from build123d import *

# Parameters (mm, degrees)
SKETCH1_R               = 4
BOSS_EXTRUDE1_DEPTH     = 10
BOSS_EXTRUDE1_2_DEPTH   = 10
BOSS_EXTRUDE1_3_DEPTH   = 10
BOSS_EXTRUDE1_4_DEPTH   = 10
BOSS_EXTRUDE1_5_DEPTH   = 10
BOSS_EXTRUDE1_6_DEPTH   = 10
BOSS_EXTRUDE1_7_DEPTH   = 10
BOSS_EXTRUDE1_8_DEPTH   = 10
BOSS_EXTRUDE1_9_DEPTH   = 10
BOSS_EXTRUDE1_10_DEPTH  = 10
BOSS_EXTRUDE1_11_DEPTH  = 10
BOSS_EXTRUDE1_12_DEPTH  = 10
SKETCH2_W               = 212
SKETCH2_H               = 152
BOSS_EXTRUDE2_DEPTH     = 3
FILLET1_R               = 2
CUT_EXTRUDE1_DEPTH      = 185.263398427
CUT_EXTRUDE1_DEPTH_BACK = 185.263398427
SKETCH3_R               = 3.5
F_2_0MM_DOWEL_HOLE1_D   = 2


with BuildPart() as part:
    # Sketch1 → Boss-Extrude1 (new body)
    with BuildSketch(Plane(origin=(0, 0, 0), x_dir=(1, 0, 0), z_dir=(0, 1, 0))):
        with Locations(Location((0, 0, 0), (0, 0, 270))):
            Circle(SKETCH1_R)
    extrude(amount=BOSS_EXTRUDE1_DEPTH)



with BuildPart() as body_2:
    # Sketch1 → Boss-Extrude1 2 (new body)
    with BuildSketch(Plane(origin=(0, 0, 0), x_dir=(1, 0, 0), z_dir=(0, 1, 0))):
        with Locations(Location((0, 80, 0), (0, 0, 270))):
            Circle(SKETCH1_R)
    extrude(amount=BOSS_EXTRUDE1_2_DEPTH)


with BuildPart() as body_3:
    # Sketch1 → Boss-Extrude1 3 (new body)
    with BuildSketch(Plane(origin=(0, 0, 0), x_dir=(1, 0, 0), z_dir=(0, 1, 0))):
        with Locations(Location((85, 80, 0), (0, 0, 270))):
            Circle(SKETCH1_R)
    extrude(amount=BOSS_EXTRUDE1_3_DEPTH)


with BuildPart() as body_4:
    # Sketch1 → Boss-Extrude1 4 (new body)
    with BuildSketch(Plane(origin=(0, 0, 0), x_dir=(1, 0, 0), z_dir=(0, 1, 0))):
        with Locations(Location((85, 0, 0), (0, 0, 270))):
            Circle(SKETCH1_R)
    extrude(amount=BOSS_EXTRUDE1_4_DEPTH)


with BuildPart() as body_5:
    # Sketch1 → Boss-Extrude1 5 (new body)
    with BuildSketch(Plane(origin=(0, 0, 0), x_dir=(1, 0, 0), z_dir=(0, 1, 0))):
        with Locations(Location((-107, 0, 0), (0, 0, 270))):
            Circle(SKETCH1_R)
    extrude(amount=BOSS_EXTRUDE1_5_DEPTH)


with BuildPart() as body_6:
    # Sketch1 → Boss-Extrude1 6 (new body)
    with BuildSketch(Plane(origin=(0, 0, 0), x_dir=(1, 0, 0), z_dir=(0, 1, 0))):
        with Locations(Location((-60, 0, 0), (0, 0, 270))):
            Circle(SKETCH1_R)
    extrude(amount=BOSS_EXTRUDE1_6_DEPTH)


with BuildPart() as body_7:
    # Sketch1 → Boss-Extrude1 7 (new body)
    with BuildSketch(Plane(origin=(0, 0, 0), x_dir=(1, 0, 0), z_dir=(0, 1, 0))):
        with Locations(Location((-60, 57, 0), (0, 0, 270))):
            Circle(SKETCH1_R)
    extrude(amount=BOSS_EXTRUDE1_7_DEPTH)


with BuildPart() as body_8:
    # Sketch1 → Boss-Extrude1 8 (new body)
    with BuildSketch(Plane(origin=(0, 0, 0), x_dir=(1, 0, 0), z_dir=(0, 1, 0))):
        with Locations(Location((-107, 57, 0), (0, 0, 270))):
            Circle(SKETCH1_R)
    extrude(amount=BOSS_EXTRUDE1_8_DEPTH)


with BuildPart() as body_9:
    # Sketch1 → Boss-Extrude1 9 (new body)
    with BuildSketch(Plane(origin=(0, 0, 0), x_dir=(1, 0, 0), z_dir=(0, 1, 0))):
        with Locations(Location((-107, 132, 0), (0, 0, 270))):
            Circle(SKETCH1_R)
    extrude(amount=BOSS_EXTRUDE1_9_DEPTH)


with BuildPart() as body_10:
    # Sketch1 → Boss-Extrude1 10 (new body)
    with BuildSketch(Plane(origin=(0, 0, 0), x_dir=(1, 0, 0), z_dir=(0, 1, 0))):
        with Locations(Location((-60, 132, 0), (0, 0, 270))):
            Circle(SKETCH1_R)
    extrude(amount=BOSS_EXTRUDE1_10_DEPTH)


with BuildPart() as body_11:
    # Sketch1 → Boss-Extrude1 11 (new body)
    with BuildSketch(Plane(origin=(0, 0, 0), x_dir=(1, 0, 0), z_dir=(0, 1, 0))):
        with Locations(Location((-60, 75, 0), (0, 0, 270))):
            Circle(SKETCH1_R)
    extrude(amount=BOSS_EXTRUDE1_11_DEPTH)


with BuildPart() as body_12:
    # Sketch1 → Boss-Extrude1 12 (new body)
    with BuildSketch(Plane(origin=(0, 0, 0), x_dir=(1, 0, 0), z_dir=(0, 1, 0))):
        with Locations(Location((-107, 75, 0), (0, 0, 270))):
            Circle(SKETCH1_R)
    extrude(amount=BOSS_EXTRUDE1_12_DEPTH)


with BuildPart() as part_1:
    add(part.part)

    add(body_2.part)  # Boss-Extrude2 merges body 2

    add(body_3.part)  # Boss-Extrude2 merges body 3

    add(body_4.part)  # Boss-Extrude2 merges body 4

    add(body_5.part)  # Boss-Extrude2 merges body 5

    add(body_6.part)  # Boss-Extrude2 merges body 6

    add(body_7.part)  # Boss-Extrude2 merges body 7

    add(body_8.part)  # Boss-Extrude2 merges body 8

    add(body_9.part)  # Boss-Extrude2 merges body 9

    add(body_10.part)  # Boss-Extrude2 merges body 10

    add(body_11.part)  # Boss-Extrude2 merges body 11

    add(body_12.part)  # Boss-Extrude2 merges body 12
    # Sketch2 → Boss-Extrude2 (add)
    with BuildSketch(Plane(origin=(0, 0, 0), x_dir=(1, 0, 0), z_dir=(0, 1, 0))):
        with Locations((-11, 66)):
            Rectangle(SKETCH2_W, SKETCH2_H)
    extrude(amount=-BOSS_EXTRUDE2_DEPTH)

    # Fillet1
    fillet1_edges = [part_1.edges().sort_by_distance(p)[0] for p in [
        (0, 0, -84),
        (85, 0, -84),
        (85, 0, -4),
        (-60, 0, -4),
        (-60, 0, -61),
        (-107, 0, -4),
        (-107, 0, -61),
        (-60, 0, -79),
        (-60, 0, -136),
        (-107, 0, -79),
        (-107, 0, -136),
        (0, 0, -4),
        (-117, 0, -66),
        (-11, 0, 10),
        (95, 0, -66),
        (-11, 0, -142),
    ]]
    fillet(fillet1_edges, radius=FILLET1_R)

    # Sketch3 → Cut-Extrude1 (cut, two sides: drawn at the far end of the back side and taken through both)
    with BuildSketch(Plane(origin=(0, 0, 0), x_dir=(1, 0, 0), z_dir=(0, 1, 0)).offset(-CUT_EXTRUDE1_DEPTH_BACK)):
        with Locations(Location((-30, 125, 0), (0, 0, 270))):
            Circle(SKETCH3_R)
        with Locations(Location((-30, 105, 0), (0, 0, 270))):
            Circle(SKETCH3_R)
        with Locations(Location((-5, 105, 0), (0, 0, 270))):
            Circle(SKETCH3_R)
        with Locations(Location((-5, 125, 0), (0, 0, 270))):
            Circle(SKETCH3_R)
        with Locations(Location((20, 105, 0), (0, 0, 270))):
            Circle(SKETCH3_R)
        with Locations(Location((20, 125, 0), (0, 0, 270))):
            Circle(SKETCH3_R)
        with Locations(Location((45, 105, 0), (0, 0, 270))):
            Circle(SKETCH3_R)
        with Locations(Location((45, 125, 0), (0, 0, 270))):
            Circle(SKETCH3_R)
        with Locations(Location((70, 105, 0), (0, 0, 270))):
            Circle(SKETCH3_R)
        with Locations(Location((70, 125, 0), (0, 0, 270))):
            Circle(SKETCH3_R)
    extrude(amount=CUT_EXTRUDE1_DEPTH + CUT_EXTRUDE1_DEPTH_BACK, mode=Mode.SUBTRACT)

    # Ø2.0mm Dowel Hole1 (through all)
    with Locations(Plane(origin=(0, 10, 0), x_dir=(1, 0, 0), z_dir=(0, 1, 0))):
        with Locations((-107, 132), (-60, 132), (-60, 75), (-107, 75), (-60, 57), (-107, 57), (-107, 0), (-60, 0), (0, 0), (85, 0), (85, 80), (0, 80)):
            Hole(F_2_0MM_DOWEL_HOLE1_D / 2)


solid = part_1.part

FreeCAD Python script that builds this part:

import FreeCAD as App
import Part
import Sketcher
from FreeCAD import Vector
Q = App.Units.Quantity


def edges_at(feature, points):
    """Names of the edges that pass closest to the given points."""
    edges = feature.Shape.Edges
    near = lambda p: min(range(len(edges)), key=lambda i: edges[i].distToShape(Part.Vertex(*p))[0])
    return sorted({f"Edge{near(p) + 1}" for p in points})


def add_polygon(sketch, points):
    """Adds a closed chain of lines whose ends are joined by coincident constraints."""
    first, n = sketch.GeometryCount, len(points)
    for a, b in zip(points, points[1:] + points[:1]):
        sketch.addGeometry(Part.LineSegment(App.Vector(*a, 0), App.Vector(*b, 0)), False)
    for i in range(n):
        sketch.addConstraint(Sketcher.Constraint("Coincident", first + i, 2, first + (i + 1) % n, 1))

doc = App.newDocument("Part")
body = doc.addObject("PartDesign::Body", "Body")

sketch1 = body.newObject("Sketcher::SketchObject", "Sketch")
sketch1.AttachmentSupport = (doc.getObject("XZ_Plane"), [""])
sketch1.MapMode = "FlatFace"
sketch1.addGeometry(Part.Circle(Vector(0, 0, 0), Vector(0, 0, 1), 4), False)
sketch1.addConstraint(Sketcher.Constraint("Coincident", 0, 3, -1, 1))
sketch1.addConstraint(Sketcher.Constraint("Diameter", 0, Q("8 mm")))
pad1 = body.newObject("PartDesign::Pad", "Pad")
pad1.Profile = sketch1
pad1.Length = 10
pad1.Reversed = True
body2 = doc.addObject("PartDesign::Body", "Body001")

sketch2 = body2.newObject("Sketcher::SketchObject", "Sketch001")
sketch2.AttachmentSupport = (doc.getObject("XZ_Plane001"), [""])
sketch2.MapMode = "FlatFace"
sketch2.addGeometry(Part.Circle(Vector(0, -80, 0), Vector(0, 0, 1), 4), False)
sketch2.addConstraint(Sketcher.Constraint("PointOnObject", 0, 3, -2))
sketch2.addConstraint(Sketcher.Constraint("Diameter", 0, Q("8 mm")))
sketch2.addConstraint(Sketcher.Constraint("DistanceY", 0, 3, -1, 1, Q("80 mm")))
pad2 = body2.newObject("PartDesign::Pad", "Pad001")
pad2.Profile = sketch2
pad2.Length = 10
pad2.Reversed = True
body3 = doc.addObject("PartDesign::Body", "Body002")

sketch3 = body3.newObject("Sketcher::SketchObject", "Sketch002")
sketch3.AttachmentSupport = (doc.getObject("XZ_Plane002"), [""])
sketch3.MapMode = "FlatFace"
sketch3.addGeometry(Part.Circle(Vector(85, -80, 0), Vector(0, 0, 1), 4), False)
sketch3.addConstraint(Sketcher.Constraint("Diameter", 0, Q("8 mm")))
sketch3.addConstraint(Sketcher.Constraint("DistanceX", -1, 1, 0, 3, Q("85 mm")))
sketch3.addConstraint(Sketcher.Constraint("DistanceY", 0, 3, -1, 1, Q("80 mm")))
pad3 = body3.newObject("PartDesign::Pad", "Pad002")
pad3.Profile = sketch3
pad3.Length = 10
pad3.Reversed = True
body4 = doc.addObject("PartDesign::Body", "Body003")

sketch4 = body4.newObject("Sketcher::SketchObject", "Sketch003")
sketch4.AttachmentSupport = (doc.getObject("XZ_Plane003"), [""])
sketch4.MapMode = "FlatFace"
sketch4.addGeometry(Part.Circle(Vector(85, 0, 0), Vector(0, 0, 1), 4), False)
sketch4.addConstraint(Sketcher.Constraint("PointOnObject", 0, 3, -1))
sketch4.addConstraint(Sketcher.Constraint("Diameter", 0, Q("8 mm")))
sketch4.addConstraint(Sketcher.Constraint("DistanceX", -1, 1, 0, 3, Q("85 mm")))
pad4 = body4.newObject("PartDesign::Pad", "Pad003")
pad4.Profile = sketch4
pad4.Length = 10
pad4.Reversed = True
body5 = doc.addObject("PartDesign::Body", "Body004")

sketch5 = body5.newObject("Sketcher::SketchObject", "Sketch004")
sketch5.AttachmentSupport = (doc.getObject("XZ_Plane004"), [""])
sketch5.MapMode = "FlatFace"
sketch5.addGeometry(Part.Circle(Vector(-107, 0, 0), Vector(0, 0, 1), 4), False)
sketch5.addConstraint(Sketcher.Constraint("PointOnObject", 0, 3, -1))
sketch5.addConstraint(Sketcher.Constraint("Diameter", 0, Q("8 mm")))
sketch5.addConstraint(Sketcher.Constraint("DistanceX", 0, 3, -1, 1, Q("107 mm")))
pad5 = body5.newObject("PartDesign::Pad", "Pad004")
pad5.Profile = sketch5
pad5.Length = 10
pad5.Reversed = True
body6 = doc.addObject("PartDesign::Body", "Body005")

sketch6 = body6.newObject("Sketcher::SketchObject", "Sketch005")
sketch6.AttachmentSupport = (doc.getObject("XZ_Plane005"), [""])
sketch6.MapMode = "FlatFace"
sketch6.addGeometry(Part.Circle(Vector(-60, 0, 0), Vector(0, 0, 1), 4), False)
sketch6.addConstraint(Sketcher.Constraint("PointOnObject", 0, 3, -1))
sketch6.addConstraint(Sketcher.Constraint("Diameter", 0, Q("8 mm")))
sketch6.addConstraint(Sketcher.Constraint("DistanceX", 0, 3, -1, 1, Q("60 mm")))
pad6 = body6.newObject("PartDesign::Pad", "Pad005")
pad6.Profile = sketch6
pad6.Length = 10
pad6.Reversed = True
body7 = doc.addObject("PartDesign::Body", "Body006")

sketch7 = body7.newObject("Sketcher::SketchObject", "Sketch006")
sketch7.AttachmentSupport = (doc.getObject("XZ_Plane006"), [""])
sketch7.MapMode = "FlatFace"
sketch7.addGeometry(Part.Circle(Vector(-60, -57, 0), Vector(0, 0, 1), 4), False)
sketch7.addConstraint(Sketcher.Constraint("Diameter", 0, Q("8 mm")))
sketch7.addConstraint(Sketcher.Constraint("DistanceX", 0, 3, -1, 1, Q("60 mm")))
sketch7.addConstraint(Sketcher.Constraint("DistanceY", 0, 3, -1, 1, Q("57 mm")))
pad7 = body7.newObject("PartDesign::Pad", "Pad006")
pad7.Profile = sketch7
pad7.Length = 10
pad7.Reversed = True
body8 = doc.addObject("PartDesign::Body", "Body007")

sketch8 = body8.newObject("Sketcher::SketchObject", "Sketch007")
sketch8.AttachmentSupport = (doc.getObject("XZ_Plane007"), [""])
sketch8.MapMode = "FlatFace"
sketch8.addGeometry(Part.Circle(Vector(-107, -57, 0), Vector(0, 0, 1), 4), False)
sketch8.addConstraint(Sketcher.Constraint("Diameter", 0, Q("8 mm")))
sketch8.addConstraint(Sketcher.Constraint("DistanceX", 0, 3, -1, 1, Q("107 mm")))
sketch8.addConstraint(Sketcher.Constraint("DistanceY", 0, 3, -1, 1, Q("57 mm")))
pad8 = body8.newObject("PartDesign::Pad", "Pad007")
pad8.Profile = sketch8
pad8.Length = 10
pad8.Reversed = True
body9 = doc.addObject("PartDesign::Body", "Body008")

sketch9 = body9.newObject("Sketcher::SketchObject", "Sketch008")
sketch9.AttachmentSupport = (doc.getObject("XZ_Plane008"), [""])
sketch9.MapMode = "FlatFace"
sketch9.addGeometry(Part.Circle(Vector(-107, -132, 0), Vector(0, 0, 1), 4), False)
sketch9.addConstraint(Sketcher.Constraint("Diameter", 0, Q("8 mm")))
sketch9.addConstraint(Sketcher.Constraint("DistanceX", 0, 3, -1, 1, Q("107 mm")))
sketch9.addConstraint(Sketcher.Constraint("DistanceY", 0, 3, -1, 1, Q("132 mm")))
pad9 = body9.newObject("PartDesign::Pad", "Pad008")
pad9.Profile = sketch9
pad9.Length = 10
pad9.Reversed = True
body10 = doc.addObject("PartDesign::Body", "Body009")

sketch10 = body10.newObject("Sketcher::SketchObject", "Sketch009")
sketch10.AttachmentSupport = (doc.getObject("XZ_Plane009"), [""])
sketch10.MapMode = "FlatFace"
sketch10.addGeometry(Part.Circle(Vector(-60, -132, 0), Vector(0, 0, 1), 4), False)
sketch10.addConstraint(Sketcher.Constraint("Diameter", 0, Q("8 mm")))
sketch10.addConstraint(Sketcher.Constraint("DistanceX", 0, 3, -1, 1, Q("60 mm")))
sketch10.addConstraint(Sketcher.Constraint("DistanceY", 0, 3, -1, 1, Q("132 mm")))
pad10 = body10.newObject("PartDesign::Pad", "Pad009")
pad10.Profile = sketch10
pad10.Length = 10
pad10.Reversed = True
body11 = doc.addObject("PartDesign::Body", "Body010")

sketch11 = body11.newObject("Sketcher::SketchObject", "Sketch010")
sketch11.AttachmentSupport = (doc.getObject("XZ_Plane010"), [""])
sketch11.MapMode = "FlatFace"
sketch11.addGeometry(Part.Circle(Vector(-60, -75, 0), Vector(0, 0, 1), 4), False)
sketch11.addConstraint(Sketcher.Constraint("Diameter", 0, Q("8 mm")))
sketch11.addConstraint(Sketcher.Constraint("DistanceX", 0, 3, -1, 1, Q("60 mm")))
sketch11.addConstraint(Sketcher.Constraint("DistanceY", 0, 3, -1, 1, Q("75 mm")))
pad11 = body11.newObject("PartDesign::Pad", "Pad010")
pad11.Profile = sketch11
pad11.Length = 10
pad11.Reversed = True
body12 = doc.addObject("PartDesign::Body", "Body011")

sketch12 = body12.newObject("Sketcher::SketchObject", "Sketch011")
sketch12.AttachmentSupport = (doc.getObject("XZ_Plane011"), [""])
sketch12.MapMode = "FlatFace"
sketch12.addGeometry(Part.Circle(Vector(-107, -75, 0), Vector(0, 0, 1), 4), False)
sketch12.addConstraint(Sketcher.Constraint("Diameter", 0, Q("8 mm")))
sketch12.addConstraint(Sketcher.Constraint("DistanceX", 0, 3, -1, 1, Q("107 mm")))
sketch12.addConstraint(Sketcher.Constraint("DistanceY", 0, 3, -1, 1, Q("75 mm")))
pad12 = body12.newObject("PartDesign::Pad", "Pad011")
pad12.Profile = sketch12
pad12.Length = 10
pad12.Reversed = True
body.AllowCompound = True
doc.recompute()

boolean = body.newObject("PartDesign::Boolean", "Boolean")
boolean.Type = "Fuse"
boolean.addObjects([body2])
doc.recompute()

boolean2 = body.newObject("PartDesign::Boolean", "Boolean001")
boolean2.Type = "Fuse"
boolean2.addObjects([body3])
doc.recompute()

boolean3 = body.newObject("PartDesign::Boolean", "Boolean002")
boolean3.Type = "Fuse"
boolean3.addObjects([body4])
doc.recompute()

boolean4 = body.newObject("PartDesign::Boolean", "Boolean003")
boolean4.Type = "Fuse"
boolean4.addObjects([body5])
doc.recompute()

boolean5 = body.newObject("PartDesign::Boolean", "Boolean004")
boolean5.Type = "Fuse"
boolean5.addObjects([body6])
doc.recompute()

boolean6 = body.newObject("PartDesign::Boolean", "Boolean005")
boolean6.Type = "Fuse"
boolean6.addObjects([body7])
doc.recompute()

boolean7 = body.newObject("PartDesign::Boolean", "Boolean006")
boolean7.Type = "Fuse"
boolean7.addObjects([body8])
doc.recompute()

boolean8 = body.newObject("PartDesign::Boolean", "Boolean007")
boolean8.Type = "Fuse"
boolean8.addObjects([body9])
doc.recompute()

boolean9 = body.newObject("PartDesign::Boolean", "Boolean008")
boolean9.Type = "Fuse"
boolean9.addObjects([body10])
doc.recompute()

boolean10 = body.newObject("PartDesign::Boolean", "Boolean009")
boolean10.Type = "Fuse"
boolean10.addObjects([body11])
doc.recompute()

boolean11 = body.newObject("PartDesign::Boolean", "Boolean010")
boolean11.Type = "Fuse"
boolean11.addObjects([body12])

sketch13 = body.newObject("Sketcher::SketchObject", "Sketch012")
sketch13.AttachmentSupport = (doc.getObject("XZ_Plane"), [""])
sketch13.MapMode = "FlatFace"
add_polygon(sketch13, [(-117, -142), (-117, 10), (95, 10), (95, -142)])
sketch13.addConstraint(Sketcher.Constraint("Vertical", 0))
sketch13.addConstraint(Sketcher.Constraint("Horizontal", 1))
sketch13.addConstraint(Sketcher.Constraint("Vertical", 2))
sketch13.addConstraint(Sketcher.Constraint("Horizontal", 3))
sketch13.addConstraint(Sketcher.Constraint("DistanceX", 1, 1, 1, 2, Q("212 mm")))
sketch13.addConstraint(Sketcher.Constraint("DistanceY", 0, 1, 0, 2, Q("152 mm")))
sketch13.addConstraint(Sketcher.Constraint("DistanceX", 0, 2, -1, 1, Q("117 mm")))
sketch13.addConstraint(Sketcher.Constraint("DistanceY", -1, 1, 0, 2, Q("10 mm")))
pad13 = body.newObject("PartDesign::Pad", "Pad012")
pad13.Profile = sketch13
pad13.Length = 3
doc.recompute()

fillet = body.newObject("PartDesign::Fillet", "Fillet")
fillet.Base = (pad13, edges_at(pad13, [
    (0, 0, -84),
    (85, 0, -84),
    (85, 0, -4),
    (-60, 0, -4),
    (-60, 0, -61),
    (-107, 0, -4),
    (-107, 0, -61),
    (-60, 0, -79),
    (-60, 0, -136),
    (-107, 0, -79),
    (-107, 0, -136),
    (0, 0, -4),
    (-117, 0, -66),
    (-11, 0, 10),
    (95, 0, -66),
    (-11, 0, -142),
]))
fillet.Radius = 2

sketch14 = body.newObject("Sketcher::SketchObject", "Sketch013")
sketch14.AttachmentSupport = (doc.getObject("XZ_Plane"), [""])
sketch14.MapMode = "FlatFace"
sketch14.addGeometry(Part.Circle(Vector(-30, -125, 0), Vector(0, 0, 1), 3.5), False)
sketch14.addGeometry(Part.Circle(Vector(-30, -105, 0), Vector(0, 0, 1), 3.5), False)
sketch14.addGeometry(Part.Circle(Vector(-5, -105, 0), Vector(0, 0, 1), 3.5), False)
sketch14.addGeometry(Part.Circle(Vector(-5, -125, 0), Vector(0, 0, 1), 3.5), False)
sketch14.addGeometry(Part.Circle(Vector(20, -105, 0), Vector(0, 0, 1), 3.5), False)
sketch14.addGeometry(Part.Circle(Vector(20, -125, 0), Vector(0, 0, 1), 3.5), False)
sketch14.addGeometry(Part.Circle(Vector(45, -105, 0), Vector(0, 0, 1), 3.5), False)
sketch14.addGeometry(Part.Circle(Vector(45, -125, 0), Vector(0, 0, 1), 3.5), False)
sketch14.addGeometry(Part.Circle(Vector(70, -105, 0), Vector(0, 0, 1), 3.5), False)
sketch14.addGeometry(Part.Circle(Vector(70, -125, 0), Vector(0, 0, 1), 3.5), False)
sketch14.addConstraint(Sketcher.Constraint("Equal", 0, 1))
sketch14.addConstraint(Sketcher.Constraint("Equal", 1, 2))
sketch14.addConstraint(Sketcher.Constraint("Equal", 2, 3))
sketch14.addConstraint(Sketcher.Constraint("Equal", 3, 4))
sketch14.addConstraint(Sketcher.Constraint("Equal", 4, 5))
sketch14.addConstraint(Sketcher.Constraint("Equal", 5, 6))
sketch14.addConstraint(Sketcher.Constraint("Equal", 6, 7))
sketch14.addConstraint(Sketcher.Constraint("Equal", 7, 8))
sketch14.addConstraint(Sketcher.Constraint("Equal", 8, 9))
sketch14.addConstraint(Sketcher.Constraint("Horizontal", 1, 3, 2, 3))
sketch14.addConstraint(Sketcher.Constraint("Horizontal", 0, 3, 3, 3))
sketch14.addConstraint(Sketcher.Constraint("Horizontal", 2, 3, 4, 3))
sketch14.addConstraint(Sketcher.Constraint("Horizontal", 3, 3, 5, 3))
sketch14.addConstraint(Sketcher.Constraint("Horizontal", 4, 3, 6, 3))
sketch14.addConstraint(Sketcher.Constraint("Horizontal", 5, 3, 7, 3))
sketch14.addConstraint(Sketcher.Constraint("Horizontal", 6, 3, 8, 3))
sketch14.addConstraint(Sketcher.Constraint("Horizontal", 7, 3, 9, 3))
sketch14.addConstraint(Sketcher.Constraint("Vertical", 0, 3, 1, 3))
sketch14.addConstraint(Sketcher.Constraint("Vertical", 2, 3, 3, 3))
sketch14.addConstraint(Sketcher.Constraint("Vertical", 4, 3, 5, 3))
sketch14.addConstraint(Sketcher.Constraint("Vertical", 6, 3, 7, 3))
sketch14.addConstraint(Sketcher.Constraint("Vertical", 8, 3, 9, 3))
sketch14.addConstraint(Sketcher.Constraint("Diameter", 0, Q("7 mm")))
sketch14.addConstraint(Sketcher.Constraint("DistanceX", 0, 3, -1, 1, Q("30 mm")))
sketch14.addConstraint(Sketcher.Constraint("DistanceY", 0, 3, -1, 1, Q("125 mm")))
sketch14.addConstraint(Sketcher.Constraint("DistanceY", 1, 3, -1, 1, Q("105 mm")))
sketch14.addConstraint(Sketcher.Constraint("DistanceX", 2, 3, -1, 1, Q("5 mm")))
sketch14.addConstraint(Sketcher.Constraint("DistanceX", -1, 1, 4, 3, Q("20 mm")))
sketch14.addConstraint(Sketcher.Constraint("DistanceX", -1, 1, 6, 3, Q("45 mm")))
sketch14.addConstraint(Sketcher.Constraint("DistanceX", -1, 1, 8, 3, Q("70 mm")))
pocket1 = body.newObject("PartDesign::Pocket", "Pocket")
pocket1.Profile = sketch14
pocket1.Type = "ThroughAll"
pocket1.Midplane = True

sketch15 = body.newObject("Sketcher::SketchObject", "Sketch014")
sketch15.AttachmentSupport = (doc.getObject("XZ_Plane"), [""])
sketch15.MapMode = "FlatFace"
sketch15.AttachmentOffset = App.Placement(Vector(0, 0, -10), App.Rotation())
sketch15.addGeometry(Part.Circle(Vector(-107, -132, 0), Vector(0, 0, 1), 1), False)
sketch15.addGeometry(Part.Circle(Vector(-60, -132, 0), Vector(0, 0, 1), 1), False)
sketch15.addGeometry(Part.Circle(Vector(-60, -75, 0), Vector(0, 0, 1), 1), False)
sketch15.addGeometry(Part.Circle(Vector(-107, -75, 0), Vector(0, 0, 1), 1), False)
sketch15.addGeometry(Part.Circle(Vector(-60, -57, 0), Vector(0, 0, 1), 1), False)
sketch15.addGeometry(Part.Circle(Vector(-107, -57, 0), Vector(0, 0, 1), 1), False)
sketch15.addGeometry(Part.Circle(Vector(-107, 0, 0), Vector(0, 0, 1), 1), False)
sketch15.addGeometry(Part.Circle(Vector(-60, 0, 0), Vector(0, 0, 1), 1), False)
sketch15.addGeometry(Part.Circle(Vector(0, 0, 0), Vector(0, 0, 1), 1), False)
sketch15.addGeometry(Part.Circle(Vector(85, 0, 0), Vector(0, 0, 1), 1), False)
sketch15.addGeometry(Part.Circle(Vector(85, -80, 0), Vector(0, 0, 1), 1), False)
sketch15.addGeometry(Part.Circle(Vector(0, -80, 0), Vector(0, 0, 1), 1), False)
sketch15.addConstraint(Sketcher.Constraint("Coincident", 8, 3, -1, 1))
sketch15.addConstraint(Sketcher.Constraint("Equal", 0, 1))
sketch15.addConstraint(Sketcher.Constraint("Equal", 1, 2))
sketch15.addConstraint(Sketcher.Constraint("Equal", 2, 3))
sketch15.addConstraint(Sketcher.Constraint("Equal", 3, 4))
sketch15.addConstraint(Sketcher.Constraint("Equal", 4, 5))
sketch15.addConstraint(Sketcher.Constraint("Equal", 5, 6))
sketch15.addConstraint(Sketcher.Constraint("Equal", 6, 7))
sketch15.addConstraint(Sketcher.Constraint("Equal", 7, 8))
sketch15.addConstraint(Sketcher.Constraint("Equal", 8, 9))
sketch15.addConstraint(Sketcher.Constraint("Equal", 9, 10))
sketch15.addConstraint(Sketcher.Constraint("Equal", 10, 11))
sketch15.addConstraint(Sketcher.Constraint("PointOnObject", 6, 3, -1))
sketch15.addConstraint(Sketcher.Constraint("PointOnObject", 7, 3, -1))
sketch15.addConstraint(Sketcher.Constraint("PointOnObject", 9, 3, -1))
sketch15.addConstraint(Sketcher.Constraint("PointOnObject", 11, 3, -2))
sketch15.addConstraint(Sketcher.Constraint("Horizontal", 0, 3, 1, 3))
sketch15.addConstraint(Sketcher.Constraint("Horizontal", 2, 3, 3, 3))
sketch15.addConstraint(Sketcher.Constraint("Horizontal", 4, 3, 5, 3))
sketch15.addConstraint(Sketcher.Constraint("Horizontal", 10, 3, 11, 3))
sketch15.addConstraint(Sketcher.Constraint("Vertical", 1, 3, 2, 3))
sketch15.addConstraint(Sketcher.Constraint("Vertical", 0, 3, 3, 3))
sketch15.addConstraint(Sketcher.Constraint("Vertical", 2, 3, 4, 3))
sketch15.addConstraint(Sketcher.Constraint("Vertical", 3, 3, 5, 3))
sketch15.addConstraint(Sketcher.Constraint("Vertical", 5, 3, 6, 3))
sketch15.addConstraint(Sketcher.Constraint("Vertical", 4, 3, 7, 3))
sketch15.addConstraint(Sketcher.Constraint("Vertical", 9, 3, 10, 3))
sketch15.addConstraint(Sketcher.Constraint("Diameter", 0, Q("2 mm")))
sketch15.addConstraint(Sketcher.Constraint("DistanceX", 0, 3, -1, 1, Q("107 mm")))
sketch15.addConstraint(Sketcher.Constraint("DistanceY", 0, 3, -1, 1, Q("132 mm")))
sketch15.addConstraint(Sketcher.Constraint("DistanceX", 1, 3, -1, 1, Q("60 mm")))
sketch15.addConstraint(Sketcher.Constraint("DistanceY", 2, 3, -1, 1, Q("75 mm")))
sketch15.addConstraint(Sketcher.Constraint("DistanceY", 4, 3, -1, 1, Q("57 mm")))
sketch15.addConstraint(Sketcher.Constraint("DistanceX", -1, 1, 9, 3, Q("85 mm")))
sketch15.addConstraint(Sketcher.Constraint("DistanceY", 10, 3, -1, 1, Q("80 mm")))
doc.recompute()
hole = body.newObject("PartDesign::Hole", "Hole")
hole.Profile = sketch15
hole.ThreadType = "None"
hole.Diameter = 2
hole.DepthType = "ThroughAll"
hole.Reversed = True

doc.recompute()
